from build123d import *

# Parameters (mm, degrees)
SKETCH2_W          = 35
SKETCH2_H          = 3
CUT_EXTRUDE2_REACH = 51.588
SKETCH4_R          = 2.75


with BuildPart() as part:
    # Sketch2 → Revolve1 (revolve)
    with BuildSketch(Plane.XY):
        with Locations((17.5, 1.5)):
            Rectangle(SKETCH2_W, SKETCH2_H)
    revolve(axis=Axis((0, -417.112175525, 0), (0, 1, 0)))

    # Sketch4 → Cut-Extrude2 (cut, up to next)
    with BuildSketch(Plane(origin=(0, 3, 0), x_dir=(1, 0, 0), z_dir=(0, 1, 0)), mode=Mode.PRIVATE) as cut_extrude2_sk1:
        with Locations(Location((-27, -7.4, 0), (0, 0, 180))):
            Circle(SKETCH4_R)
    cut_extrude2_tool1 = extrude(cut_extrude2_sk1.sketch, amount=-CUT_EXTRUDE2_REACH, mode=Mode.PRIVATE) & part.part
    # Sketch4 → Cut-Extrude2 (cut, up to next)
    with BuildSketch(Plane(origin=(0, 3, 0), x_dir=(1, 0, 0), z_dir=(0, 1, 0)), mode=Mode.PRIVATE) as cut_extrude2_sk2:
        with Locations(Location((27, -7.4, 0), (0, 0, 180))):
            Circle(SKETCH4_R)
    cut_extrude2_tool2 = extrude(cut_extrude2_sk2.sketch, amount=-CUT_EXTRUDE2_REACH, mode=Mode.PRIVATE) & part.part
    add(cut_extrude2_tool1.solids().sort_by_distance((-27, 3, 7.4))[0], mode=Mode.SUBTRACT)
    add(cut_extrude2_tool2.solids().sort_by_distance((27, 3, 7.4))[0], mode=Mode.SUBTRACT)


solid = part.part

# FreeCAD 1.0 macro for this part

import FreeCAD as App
import Part
import Sketcher

V = App.Vector
Q = App.Units.Quantity


def add_polygon(sketch, points):
    """Adds a closed chain of lines whose ends are joined by coincident constraints."""
    first, n = sketch.GeometryCount, len(points)
    for a, b in zip(points, points[1:] + points[:1]):
        sketch.addGeometry(Part.LineSegment(App.Vector(*a, 0), App.Vector(*b, 0)), False)
    for i in range(n):
        sketch.addConstraint(Sketcher.Constraint("Coincident", first + i, 2, first + (i + 1) % n, 1))

doc = App.newDocument("Part")
body = doc.addObject("PartDesign::Body", "Body")

# Sketch on XY plane
sketch1 = body.newObject("Sketcher::SketchObject", "Sketch")
sketch1.AttachmentSupport = (doc.getObject("XY_Plane"), [""])
sketch1.MapMode = "FlatFace"
add_polygon(sketch1, [(0, 3), (0, 0), (35, 0), (35, 3)])  # lines 0-3
sketch1.addConstraint([
    Sketcher.Constraint("Vertical", 0),
    Sketcher.Constraint("Horizontal", 1),
    Sketcher.Constraint("Vertical", 2),
    Sketcher.Constraint("Horizontal", 3),
    Sketcher.Constraint("Coincident", 0, 2, -1, 1),
    Sketcher.Constraint("DistanceX", 1, 1, 1, 2, Q("35 mm")),
    Sketcher.Constraint("DistanceY", 0, 2, 0, 1, Q("3 mm")),
])
revolution = body.newObject("PartDesign::Revolution", "Revolution")
revolution.Profile = sketch1
revolution.ReferenceAxis = (sketch1, ["V_Axis"])
revolution.Angle = 360

# Sketch on XZ plane
sketch2 = body.newObject("Sketcher::SketchObject", "Sketch001")
sketch2.AttachmentSupport = (doc.getObject("XZ_Plane"), [""])
sketch2.MapMode = "FlatFace"
sketch2.AttachmentOffset = App.Placement(V(0, 0, -3), App.Rotation())
sketch2.addGeometry(Part.Circle(V(-27, 7.4, 0), V(0, 0, 1), 2.75), False)
sketch2.addConstraint([
    Sketcher.Constraint("Diameter", 0, Q("5.5 mm")),
    Sketcher.Constraint("DistanceX", 0, 3, -1, 1, Q("27 mm")),
    Sketcher.Constraint("DistanceY", -1, 1, 0, 3, Q("7.4 mm")),
])
pocket1 = body.newObject("PartDesign::Pocket", "Pocket")
pocket1.Profile = sketch2
pocket1.Type = "UpToFirst"
pocket1.Reversed = True

# Sketch on XZ plane
sketch3 = body.newObject("Sketcher::SketchObject", "Sketch002")
sketch3.AttachmentSupport = (doc.getObject("XZ_Plane"), [""])
sketch3.MapMode = "FlatFace"
sketch3.AttachmentOffset = App.Placement(V(0, 0, -3), App.Rotation())
sketch3.addGeometry(Part.Circle(V(27, 7.4, 0), V(0, 0, 1), 2.75), False)
sketch3.addConstraint([
    Sketcher.Constraint("Diameter", 0, Q("5.5 mm")),
    Sketcher.Constraint("DistanceX", -1, 1, 0, 3, Q("27 mm")),
    Sketcher.Constraint("DistanceY", -1, 1, 0, 3, Q("7.4 mm")),
])
pocket2 = body.newObject("PartDesign::Pocket", "Pocket001")
pocket2.Profile = sketch3
pocket2.Type = "UpToFirst"
pocket2.Reversed = True

doc.recompute()
